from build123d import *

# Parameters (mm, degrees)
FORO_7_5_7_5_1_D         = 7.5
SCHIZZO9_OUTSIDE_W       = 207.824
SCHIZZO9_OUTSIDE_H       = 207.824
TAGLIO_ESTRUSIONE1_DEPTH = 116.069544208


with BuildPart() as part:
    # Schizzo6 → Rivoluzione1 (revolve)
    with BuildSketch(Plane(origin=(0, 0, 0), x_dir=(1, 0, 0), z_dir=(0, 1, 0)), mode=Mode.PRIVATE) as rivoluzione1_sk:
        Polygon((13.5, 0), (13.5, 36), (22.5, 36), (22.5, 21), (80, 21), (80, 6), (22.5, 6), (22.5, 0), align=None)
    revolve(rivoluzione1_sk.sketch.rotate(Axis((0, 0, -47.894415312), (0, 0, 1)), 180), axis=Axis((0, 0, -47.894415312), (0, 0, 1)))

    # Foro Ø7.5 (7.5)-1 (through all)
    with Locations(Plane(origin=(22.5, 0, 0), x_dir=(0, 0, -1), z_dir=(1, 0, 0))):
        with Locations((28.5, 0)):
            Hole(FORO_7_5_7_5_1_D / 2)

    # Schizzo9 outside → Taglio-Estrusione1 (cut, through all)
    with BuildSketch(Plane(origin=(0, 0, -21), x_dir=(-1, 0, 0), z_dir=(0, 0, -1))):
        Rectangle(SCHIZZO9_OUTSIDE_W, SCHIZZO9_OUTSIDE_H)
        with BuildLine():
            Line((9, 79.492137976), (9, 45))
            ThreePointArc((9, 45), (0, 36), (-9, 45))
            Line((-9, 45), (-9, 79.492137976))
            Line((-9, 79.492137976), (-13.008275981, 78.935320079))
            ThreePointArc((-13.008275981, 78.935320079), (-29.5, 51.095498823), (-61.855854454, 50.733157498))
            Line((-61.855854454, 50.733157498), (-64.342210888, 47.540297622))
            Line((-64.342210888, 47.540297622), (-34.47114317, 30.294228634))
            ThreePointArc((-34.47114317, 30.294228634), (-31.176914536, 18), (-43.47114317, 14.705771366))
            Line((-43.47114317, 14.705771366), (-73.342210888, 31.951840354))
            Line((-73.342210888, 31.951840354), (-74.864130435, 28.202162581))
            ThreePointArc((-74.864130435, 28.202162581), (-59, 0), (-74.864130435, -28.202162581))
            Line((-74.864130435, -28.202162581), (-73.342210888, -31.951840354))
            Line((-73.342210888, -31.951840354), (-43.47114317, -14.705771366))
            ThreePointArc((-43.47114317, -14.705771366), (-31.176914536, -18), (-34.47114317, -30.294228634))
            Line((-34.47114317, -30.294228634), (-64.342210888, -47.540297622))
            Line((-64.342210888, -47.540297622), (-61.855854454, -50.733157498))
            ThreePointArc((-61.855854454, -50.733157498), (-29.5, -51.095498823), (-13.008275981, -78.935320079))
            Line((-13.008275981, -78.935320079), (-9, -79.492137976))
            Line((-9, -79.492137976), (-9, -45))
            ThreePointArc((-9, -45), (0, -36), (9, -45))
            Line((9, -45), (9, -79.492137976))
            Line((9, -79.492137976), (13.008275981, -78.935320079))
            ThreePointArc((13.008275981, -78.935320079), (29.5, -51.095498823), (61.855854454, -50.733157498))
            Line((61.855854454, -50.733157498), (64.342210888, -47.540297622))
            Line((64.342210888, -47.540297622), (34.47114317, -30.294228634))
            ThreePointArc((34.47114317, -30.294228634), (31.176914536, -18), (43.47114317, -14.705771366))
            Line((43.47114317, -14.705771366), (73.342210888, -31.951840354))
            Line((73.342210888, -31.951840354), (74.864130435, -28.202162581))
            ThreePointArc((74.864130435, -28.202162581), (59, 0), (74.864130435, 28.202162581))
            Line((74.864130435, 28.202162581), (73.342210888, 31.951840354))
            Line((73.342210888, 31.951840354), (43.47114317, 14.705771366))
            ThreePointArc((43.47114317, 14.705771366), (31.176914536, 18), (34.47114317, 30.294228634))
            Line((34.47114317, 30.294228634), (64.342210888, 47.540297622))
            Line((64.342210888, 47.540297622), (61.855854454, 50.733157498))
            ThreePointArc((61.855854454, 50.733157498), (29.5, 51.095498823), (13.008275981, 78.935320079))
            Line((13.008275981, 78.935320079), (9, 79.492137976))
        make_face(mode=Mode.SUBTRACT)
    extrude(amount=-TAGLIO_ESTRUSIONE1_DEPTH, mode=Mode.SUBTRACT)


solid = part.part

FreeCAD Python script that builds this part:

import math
import FreeCAD as App
import Part
import Sketcher

V = App.Vector
Q = App.Units.Quantity

doc = App.newDocument("Part")
body = doc.addObject("PartDesign::Body", "Body")

sketch1 = doc.addObject("Sketcher::SketchObject", "Sketch")
body.addObject(sketch1)
sketch1.AttachmentSupport = (doc.XZ_Plane, [""])
sketch1.MapMode = "FlatFace"
sketch1.addGeometry([
    Part.LineSegment(V(14, -36, 0), V(14, 0, 0)),
    Part.LineSegment(V(14, 0, 0), V(22, 0, 0)),
    Part.LineSegment(V(22, 0, 0), V(22, -6, 0)),
    Part.LineSegment(V(22, -6, 0), V(80, -6, 0)),
    Part.LineSegment(V(80, -6, 0), V(80, -21, 0)),
    Part.LineSegment(V(80, -21, 0), V(22, -21, 0)),
    Part.LineSegment(V(22, -21, 0), V(22, -36, 0)),
    Part.LineSegment(V(22, -36, 0), V(14, -36, 0)),
], False)
sketch1.addConstraint([
    Sketcher.Constraint("Coincident", 0, 2, 1, 1),
    Sketcher.Constraint("Coincident", 1, 2, 2, 1),
    Sketcher.Constraint("Coincident", 2, 2, 3, 1),
    Sketcher.Constraint("Coincident", 3, 2, 4, 1),
    Sketcher.Constraint("Coincident", 4, 2, 5, 1),
    Sketcher.Constraint("Coincident", 5, 2, 6, 1),
    Sketcher.Constraint("Coincident", 6, 2, 7, 1),
    Sketcher.Constraint("Coincident", 7, 2, 0, 1),
    Sketcher.Constraint("Vertical", 0),
    Sketcher.Constraint("Horizontal", 1),
    Sketcher.Constraint("Vertical", 2),
    Sketcher.Constraint("Horizontal", 3),
    Sketcher.Constraint("Vertical", 4),
    Sketcher.Constraint("Horizontal", 5),
    Sketcher.Constraint("Vertical", 6),
    Sketcher.Constraint("Horizontal", 7),
    Sketcher.Constraint("PointOnObject", 0, 2, -1),
    Sketcher.Constraint("Vertical", 2, 2, 5, 2),
    Sketcher.Constraint("Equal", 4, 6),
    Sketcher.Constraint("DistanceX", 1, 1, 1, 2, Q("9 mm")),
    Sketcher.Constraint("DistanceY", 0, 1, 0, 2, Q("36 mm")),
    Sketcher.Constraint("DistanceY", 2, 2, 2, 1, Q("6 mm")),
    Sketcher.Constraint("DistanceX", 3, 1, 3, 2, Q("57.5 mm")),
    Sketcher.Constraint("DistanceX", -1, 1, 3, 2, Q("80 mm")),
])
revolution = doc.addObject("PartDesign::Revolution", "Revolution")
body.addObject(revolution)
revolution.Profile = sketch1
revolution.ReferenceAxis = (sketch1, ["V_Axis"])
revolution.Angle = 360

sketch2 = doc.addObject("Sketcher::SketchObject", "Sketch001")
body.addObject(sketch2)
sketch2.AttachmentSupport = (doc.YZ_Plane, [""])
sketch2.MapMode = "FlatFace"
sketch2.AttachmentOffset = App.Placement(V(0, 0, 22.5), App.Rotation())
sketch2.addGeometry(Part.Circle(V(0, -28.5, 0), V(0, 0, 1), 3.8), False)
sketch2.addConstraint([
    Sketcher.Constraint("PointOnObject", 0, 3, -2),
    Sketcher.Constraint("Diameter", 0, Q("7.5 mm")),
    Sketcher.Constraint("DistanceY", 0, 3, -1, 1, Q("28.5 mm")),
])
doc.recompute()
hole = doc.addObject("PartDesign::Hole", "Hole")
body.addObject(hole)
hole.Profile = sketch2
hole.ThreadType = "None"
hole.Diameter = 7.5
hole.DepthType = "ThroughAll"

sketch3 = doc.addObject("Sketcher::SketchObject", "Sketch002")
body.addObject(sketch3)
sketch3.AttachmentSupport = (doc.XY_Plane, [""])
sketch3.MapMode = "FlatFace"
sketch3.AttachmentOffset = App.Placement(V(0, 0, -21), App.Rotation())
sketch3.addGeometry([
    Part.LineSegment(V(103.9, 103.9, 0), V(103.9, -103.9, 0)),
    Part.LineSegment(V(103.9, -103.9, 0), V(-103.9, -103.9, 0)),
    Part.LineSegment(V(-103.9, -103.9, 0), V(-103.9, 103.9, 0)),
    Part.LineSegment(V(-103.9, 103.9, 0), V(103.9, 103.9, 0)),
    Part.LineSegment(V(-9, 45, 0), V(-9, 79.5, 0)),
    Part.LineSegment(V(-9, 79.5, 0), V(-13, 78.9, 0)),
    Part.ArcOfCircle(Part.Circle(V(-46, 79.7, 0), V(0, 0, 1), 33), math.radians(-119), math.radians(-1)),
    Part.LineSegment(V(-61.9, 50.7, 0), V(-64.3, 47.5, 0)),
    Part.LineSegment(V(-64.3, 47.5, 0), V(-34.5, 30.3, 0)),
    Part.ArcOfCircle(Part.Circle(V(-39, 22.5, 0), V(0, 0, 1), 9), math.radians(-120), math.radians(60)),
    Part.LineSegment(V(-43.5, 14.7, 0), V(-73.3, 32, 0)),
    Part.LineSegment(V(-73.3, 32, 0), V(-74.9, 28.2, 0)),
    Part.ArcOfCircle(Part.Circle(V(-92, 0, 0), V(0, 0, 1), 33), math.radians(-59), math.radians(59)),
    Part.LineSegment(V(-74.9, -28.2, 0), V(-73.3, -32, 0)),
    Part.LineSegment(V(-73.3, -32, 0), V(-43.5, -14.7, 0)),
    Part.ArcOfCircle(Part.Circle(V(-39, -22.5, 0), V(0, 0, 1), 9), math.radians(-60), math.radians(120)),
    Part.LineSegment(V(-34.5, -30.3, 0), V(-64.3, -47.5, 0)),
    Part.LineSegment(V(-64.3, -47.5, 0), V(-61.9, -50.7, 0)),
    Part.ArcOfCircle(Part.Circle(V(-46, -79.7, 0), V(0, 0, 1), 33), math.radians(1), math.radians(119)),
    Part.LineSegment(V(-13, -78.9, 0), V(-9, -79.5, 0)),
    Part.LineSegment(V(-9, -79.5, 0), V(-9, -45, 0)),
    Part.ArcOfCircle(Part.Circle(V(0, -45, 0), V(0, 0, 1), 9), math.radians(0), math.radians(180)),
    Part.LineSegment(V(9, -45, 0), V(9, -79.5, 0)),
    Part.LineSegment(V(9, -79.5, 0), V(13, -78.9, 0)),
    Part.ArcOfCircle(Part.Circle(V(46, -79.7, 0), V(0, 0, 1), 33), math.radians(61), math.radians(179)),
    Part.LineSegment(V(61.9, -50.7, 0), V(64.3, -47.5, 0)),
    Part.LineSegment(V(64.3, -47.5, 0), V(34.5, -30.3, 0)),
    Part.ArcOfCircle(Part.Circle(V(39, -22.5, 0), V(0, 0, 1), 9), math.radians(60), math.radians(240)),
    Part.LineSegment(V(43.5, -14.7, 0), V(73.3, -32, 0)),
    Part.LineSegment(V(73.3, -32, 0), V(74.9, -28.2, 0)),
    Part.ArcOfCircle(Part.Circle(V(92, 0, 0), V(0, 0, 1), 33), math.radians(121), math.radians(239)),
    Part.LineSegment(V(74.9, 28.2, 0), V(73.3, 32, 0)),
    Part.LineSegment(V(73.3, 32, 0), V(43.5, 14.7, 0)),
    Part.ArcOfCircle(Part.Circle(V(39, 22.5, 0), V(0, 0, 1), 9), math.radians(120), math.radians(300)),
    Part.LineSegment(V(34.5, 30.3, 0), V(64.3, 47.5, 0)),
    Part.LineSegment(V(64.3, 47.5, 0), V(61.9, 50.7, 0)),
    Part.ArcOfCircle(Part.Circle(V(46, 79.7, 0), V(0, 0, 1), 33), math.radians(-179), math.radians(-61)),
    Part.LineSegment(V(13, 78.9, 0), V(9, 79.5, 0)),
    Part.LineSegment(V(9, 79.5, 0), V(9, 45, 0)),
    Part.ArcOfCircle(Part.Circle(V(0, 45, 0), V(0, 0, 1), 9), math.radians(180), math.radians(360)),
], False)
sketch3.addConstraint([
    Sketcher.Constraint("Coincident", 0, 2, 1, 1),
    Sketcher.Constraint("Coincident", 1, 2, 2, 1),
    Sketcher.Constraint("Coincident", 2, 2, 3, 1),
    Sketcher.Constraint("Coincident", 3, 2, 0, 1),
    Sketcher.Constraint("Coincident", 4, 2, 5, 1),
    Sketcher.Constraint("Coincident", 5, 2, 6, 2),
    Sketcher.Constraint("Coincident", 6, 1, 7, 1),
    Sketcher.Constraint("Coincident", 7, 2, 8, 1),
    Sketcher.Constraint("Tangent", 8, 2, 9, 2),
    Sketcher.Constraint("Tangent", 9, 1, 10, 1),
    Sketcher.Constraint("Coincident", 10, 2, 11, 1),
    Sketcher.Constraint("Coincident", 11, 2, 12, 2),
    Sketcher.Constraint("Coincident", 12, 1, 13, 1),
    Sketcher.Constraint("Coincident", 13, 2, 14, 1),
    Sketcher.Constraint("Tangent", 14, 2, 15, 2),
    Sketcher.Constraint("Tangent", 15, 1, 16, 1),
    Sketcher.Constraint("Coincident", 16, 2, 17, 1),
    Sketcher.Constraint("Coincident", 17, 2, 18, 2),
    Sketcher.Constraint("Coincident", 18, 1, 19, 1),
    Sketcher.Constraint("Coincident", 19, 2, 20, 1),
    Sketcher.Constraint("Tangent", 20, 2, 21, 2),
    Sketcher.Constraint("Tangent", 21, 1, 22, 1),
    Sketcher.Constraint("Coincident", 22, 2, 23, 1),
    Sketcher.Constraint("Coincident", 23, 2, 24, 2),
    Sketcher.Constraint("Coincident", 24, 1, 25, 1),
    Sketcher.Constraint("Coincident", 25, 2, 26, 1),
    Sketcher.Constraint("Tangent", 26, 2, 27, 2),
    Sketcher.Constraint("Tangent", 27, 1, 28, 1),
    Sketcher.Constraint("Coincident", 28, 2, 29, 1),
    Sketcher.Constraint("Coincident", 29, 2, 30, 2),
    Sketcher.Constraint("Coincident", 30, 1, 31, 1),
    Sketcher.Constraint("Coincident", 31, 2, 32, 1),
    Sketcher.Constraint("Tangent", 32, 2, 33, 2),
    Sketcher.Constraint("Tangent", 33, 1, 34, 1),
    Sketcher.Constraint("Coincident", 34, 2, 35, 1),
    Sketcher.Constraint("Coincident", 35, 2, 36, 2),
    Sketcher.Constraint("Coincident", 36, 1, 37, 1),
    Sketcher.Constraint("Coincident", 37, 2, 38, 1),
    Sketcher.Constraint("Tangent", 38, 2, 39, 2),
    Sketcher.Constraint("Tangent", 39, 1, 4, 1),
    Sketcher.Constraint("Vertical", 0),
    Sketcher.Constraint("Horizontal", 1),
    Sketcher.Constraint("Vertical", 2),
    Sketcher.Constraint("Horizontal", 3),
    Sketcher.Constraint("Vertical", 4),
    Sketcher.Constraint("Vertical", 20),
    Sketcher.Constraint("Vertical", 22),
    Sketcher.Constraint("Vertical", 38),
    Sketcher.Constraint("Equal", 6, 12),
    Sketcher.Constraint("Equal", 9, 15),
    Sketcher.Constraint("Equal", 12, 18),
    Sketcher.Constraint("Equal", 15, 21),
    Sketcher.Constraint("Equal", 18, 24),
    Sketcher.Constraint("Equal", 21, 27),
    Sketcher.Constraint("Equal", 24, 30),
    Sketcher.Constraint("Equal", 27, 33),
    Sketcher.Constraint("Equal", 30, 36),
    Sketcher.Constraint("Equal", 33, 39),
    Sketcher.Constraint("Symmetric", 6, 3, 24, 3, -1, 1),
    Sketcher.Constraint("Symmetric", 9, 3, 27, 3, -1, 1),
    Sketcher.Constraint("Symmetric", 12, 3, 30, 3, -1, 1),
    Sketcher.Constraint("Symmetric", 15, 3, 33, 3, -1, 1),
    Sketcher.Constraint("Symmetric", 18, 3, 36, 3, -1, 1),
    Sketcher.Constraint("Symmetric", 21, 3, 39, 3, -1, 1),
    Sketcher.Constraint("Symmetric", 0, 2, 2, 2, -1, 1),
    Sketcher.Constraint("Symmetric", 7, 2, 25, 2, -1, 1),
    Sketcher.Constraint("Symmetric", 10, 2, 28, 2, -1, 1),
    Sketcher.Constraint("Symmetric", 13, 2, 31, 2, -1, 1),
    Sketcher.Constraint("Symmetric", 16, 2, 34, 2, -1, 1),
    Sketcher.Constraint("Symmetric", 18, 3, 24, 3, -2),
    Sketcher.Constraint("Symmetric", 15, 3, 27, 3, -2),
    Sketcher.Constraint("Symmetric", 19, 2, 22, 2, -2),
    Sketcher.Constraint("Symmetric", 16, 2, 25, 2, -2),
    Sketcher.Constraint("Symmetric", 13, 2, 28, 2, -2),
    Sketcher.Constraint("Symmetric", 12, 1, 29, 2, -2),
    Sketcher.Constraint("Parallel", 8, 10),
    Sketcher.Constraint("Parallel", 5, 23),
    Sketcher.Constraint("Parallel", 7, 25),
    Sketcher.Constraint("Parallel", 11, 29),
    Sketcher.Constraint("Parallel", 13, 31),
    Sketcher.Constraint("Parallel", 17, 35),
    Sketcher.Constraint("Parallel", 19, 37),
    Sketcher.Constraint("Horizontal", 18, 1, 23, 2),
    Sketcher.Constraint("Horizontal", 17, 2, 24, 1),
    Sketcher.Constraint("Horizontal", 5, 2, 36, 1),
    Sketcher.Constraint("Vertical", 5, 2, 18, 1),
    Sketcher.Constraint("Equal", 3, 0),
    Sketcher.Constraint("Equal", 5, 7),
    Sketcher.Constraint("Equal", 8, 10),
    Sketcher.Constraint("Equal", 7, 11),
    Sketcher.Constraint("Radius", 6, Q("33 mm")),
    Sketcher.Constraint("Radius", 9, Q("9 mm")),
    Sketcher.Constraint("Angle", 8, Q("-30 deg")),
    Sketcher.Constraint("DistanceX", 6, 3, -1, 1, Q("46 mm")),
    Sketcher.Constraint("DistanceX", 12, 3, -1, 1, Q("92 mm")),
    Sketcher.Constraint("DistanceY", 21, 3, -1, 1, Q("45 mm")),
    Sketcher.Constraint("DistanceY", 15, 3, 9, 3, Q("45 mm")),
    Sketcher.Constraint("DistanceX", 1, 2, 1, 1, Q("207.824 mm")),
    Sketcher.Constraint("DistanceY", 4, 2, 6, 3, Q("0.182199 mm")),
    Sketcher.Constraint("DistanceY", 4, 1, 4, 2, Q("34.492138 mm")),
    Sketcher.Constraint("DistanceY", -1, 1, 5, 2, Q("78.93532 mm")),
    Sketcher.Constraint("DistanceX", 7, 2, -1, 1, Q("64.342211 mm")),
    Sketcher.Constraint("DistanceY", -1, 1, 10, 2, Q("31.95184 mm")),
])
pocket1 = doc.addObject("PartDesign::Pocket", "Pocket")
body.addObject(pocket1)
pocket1.Profile = sketch3
pocket1.Type = "ThroughAll"
pocket1.Reversed = True

doc.recompute()
